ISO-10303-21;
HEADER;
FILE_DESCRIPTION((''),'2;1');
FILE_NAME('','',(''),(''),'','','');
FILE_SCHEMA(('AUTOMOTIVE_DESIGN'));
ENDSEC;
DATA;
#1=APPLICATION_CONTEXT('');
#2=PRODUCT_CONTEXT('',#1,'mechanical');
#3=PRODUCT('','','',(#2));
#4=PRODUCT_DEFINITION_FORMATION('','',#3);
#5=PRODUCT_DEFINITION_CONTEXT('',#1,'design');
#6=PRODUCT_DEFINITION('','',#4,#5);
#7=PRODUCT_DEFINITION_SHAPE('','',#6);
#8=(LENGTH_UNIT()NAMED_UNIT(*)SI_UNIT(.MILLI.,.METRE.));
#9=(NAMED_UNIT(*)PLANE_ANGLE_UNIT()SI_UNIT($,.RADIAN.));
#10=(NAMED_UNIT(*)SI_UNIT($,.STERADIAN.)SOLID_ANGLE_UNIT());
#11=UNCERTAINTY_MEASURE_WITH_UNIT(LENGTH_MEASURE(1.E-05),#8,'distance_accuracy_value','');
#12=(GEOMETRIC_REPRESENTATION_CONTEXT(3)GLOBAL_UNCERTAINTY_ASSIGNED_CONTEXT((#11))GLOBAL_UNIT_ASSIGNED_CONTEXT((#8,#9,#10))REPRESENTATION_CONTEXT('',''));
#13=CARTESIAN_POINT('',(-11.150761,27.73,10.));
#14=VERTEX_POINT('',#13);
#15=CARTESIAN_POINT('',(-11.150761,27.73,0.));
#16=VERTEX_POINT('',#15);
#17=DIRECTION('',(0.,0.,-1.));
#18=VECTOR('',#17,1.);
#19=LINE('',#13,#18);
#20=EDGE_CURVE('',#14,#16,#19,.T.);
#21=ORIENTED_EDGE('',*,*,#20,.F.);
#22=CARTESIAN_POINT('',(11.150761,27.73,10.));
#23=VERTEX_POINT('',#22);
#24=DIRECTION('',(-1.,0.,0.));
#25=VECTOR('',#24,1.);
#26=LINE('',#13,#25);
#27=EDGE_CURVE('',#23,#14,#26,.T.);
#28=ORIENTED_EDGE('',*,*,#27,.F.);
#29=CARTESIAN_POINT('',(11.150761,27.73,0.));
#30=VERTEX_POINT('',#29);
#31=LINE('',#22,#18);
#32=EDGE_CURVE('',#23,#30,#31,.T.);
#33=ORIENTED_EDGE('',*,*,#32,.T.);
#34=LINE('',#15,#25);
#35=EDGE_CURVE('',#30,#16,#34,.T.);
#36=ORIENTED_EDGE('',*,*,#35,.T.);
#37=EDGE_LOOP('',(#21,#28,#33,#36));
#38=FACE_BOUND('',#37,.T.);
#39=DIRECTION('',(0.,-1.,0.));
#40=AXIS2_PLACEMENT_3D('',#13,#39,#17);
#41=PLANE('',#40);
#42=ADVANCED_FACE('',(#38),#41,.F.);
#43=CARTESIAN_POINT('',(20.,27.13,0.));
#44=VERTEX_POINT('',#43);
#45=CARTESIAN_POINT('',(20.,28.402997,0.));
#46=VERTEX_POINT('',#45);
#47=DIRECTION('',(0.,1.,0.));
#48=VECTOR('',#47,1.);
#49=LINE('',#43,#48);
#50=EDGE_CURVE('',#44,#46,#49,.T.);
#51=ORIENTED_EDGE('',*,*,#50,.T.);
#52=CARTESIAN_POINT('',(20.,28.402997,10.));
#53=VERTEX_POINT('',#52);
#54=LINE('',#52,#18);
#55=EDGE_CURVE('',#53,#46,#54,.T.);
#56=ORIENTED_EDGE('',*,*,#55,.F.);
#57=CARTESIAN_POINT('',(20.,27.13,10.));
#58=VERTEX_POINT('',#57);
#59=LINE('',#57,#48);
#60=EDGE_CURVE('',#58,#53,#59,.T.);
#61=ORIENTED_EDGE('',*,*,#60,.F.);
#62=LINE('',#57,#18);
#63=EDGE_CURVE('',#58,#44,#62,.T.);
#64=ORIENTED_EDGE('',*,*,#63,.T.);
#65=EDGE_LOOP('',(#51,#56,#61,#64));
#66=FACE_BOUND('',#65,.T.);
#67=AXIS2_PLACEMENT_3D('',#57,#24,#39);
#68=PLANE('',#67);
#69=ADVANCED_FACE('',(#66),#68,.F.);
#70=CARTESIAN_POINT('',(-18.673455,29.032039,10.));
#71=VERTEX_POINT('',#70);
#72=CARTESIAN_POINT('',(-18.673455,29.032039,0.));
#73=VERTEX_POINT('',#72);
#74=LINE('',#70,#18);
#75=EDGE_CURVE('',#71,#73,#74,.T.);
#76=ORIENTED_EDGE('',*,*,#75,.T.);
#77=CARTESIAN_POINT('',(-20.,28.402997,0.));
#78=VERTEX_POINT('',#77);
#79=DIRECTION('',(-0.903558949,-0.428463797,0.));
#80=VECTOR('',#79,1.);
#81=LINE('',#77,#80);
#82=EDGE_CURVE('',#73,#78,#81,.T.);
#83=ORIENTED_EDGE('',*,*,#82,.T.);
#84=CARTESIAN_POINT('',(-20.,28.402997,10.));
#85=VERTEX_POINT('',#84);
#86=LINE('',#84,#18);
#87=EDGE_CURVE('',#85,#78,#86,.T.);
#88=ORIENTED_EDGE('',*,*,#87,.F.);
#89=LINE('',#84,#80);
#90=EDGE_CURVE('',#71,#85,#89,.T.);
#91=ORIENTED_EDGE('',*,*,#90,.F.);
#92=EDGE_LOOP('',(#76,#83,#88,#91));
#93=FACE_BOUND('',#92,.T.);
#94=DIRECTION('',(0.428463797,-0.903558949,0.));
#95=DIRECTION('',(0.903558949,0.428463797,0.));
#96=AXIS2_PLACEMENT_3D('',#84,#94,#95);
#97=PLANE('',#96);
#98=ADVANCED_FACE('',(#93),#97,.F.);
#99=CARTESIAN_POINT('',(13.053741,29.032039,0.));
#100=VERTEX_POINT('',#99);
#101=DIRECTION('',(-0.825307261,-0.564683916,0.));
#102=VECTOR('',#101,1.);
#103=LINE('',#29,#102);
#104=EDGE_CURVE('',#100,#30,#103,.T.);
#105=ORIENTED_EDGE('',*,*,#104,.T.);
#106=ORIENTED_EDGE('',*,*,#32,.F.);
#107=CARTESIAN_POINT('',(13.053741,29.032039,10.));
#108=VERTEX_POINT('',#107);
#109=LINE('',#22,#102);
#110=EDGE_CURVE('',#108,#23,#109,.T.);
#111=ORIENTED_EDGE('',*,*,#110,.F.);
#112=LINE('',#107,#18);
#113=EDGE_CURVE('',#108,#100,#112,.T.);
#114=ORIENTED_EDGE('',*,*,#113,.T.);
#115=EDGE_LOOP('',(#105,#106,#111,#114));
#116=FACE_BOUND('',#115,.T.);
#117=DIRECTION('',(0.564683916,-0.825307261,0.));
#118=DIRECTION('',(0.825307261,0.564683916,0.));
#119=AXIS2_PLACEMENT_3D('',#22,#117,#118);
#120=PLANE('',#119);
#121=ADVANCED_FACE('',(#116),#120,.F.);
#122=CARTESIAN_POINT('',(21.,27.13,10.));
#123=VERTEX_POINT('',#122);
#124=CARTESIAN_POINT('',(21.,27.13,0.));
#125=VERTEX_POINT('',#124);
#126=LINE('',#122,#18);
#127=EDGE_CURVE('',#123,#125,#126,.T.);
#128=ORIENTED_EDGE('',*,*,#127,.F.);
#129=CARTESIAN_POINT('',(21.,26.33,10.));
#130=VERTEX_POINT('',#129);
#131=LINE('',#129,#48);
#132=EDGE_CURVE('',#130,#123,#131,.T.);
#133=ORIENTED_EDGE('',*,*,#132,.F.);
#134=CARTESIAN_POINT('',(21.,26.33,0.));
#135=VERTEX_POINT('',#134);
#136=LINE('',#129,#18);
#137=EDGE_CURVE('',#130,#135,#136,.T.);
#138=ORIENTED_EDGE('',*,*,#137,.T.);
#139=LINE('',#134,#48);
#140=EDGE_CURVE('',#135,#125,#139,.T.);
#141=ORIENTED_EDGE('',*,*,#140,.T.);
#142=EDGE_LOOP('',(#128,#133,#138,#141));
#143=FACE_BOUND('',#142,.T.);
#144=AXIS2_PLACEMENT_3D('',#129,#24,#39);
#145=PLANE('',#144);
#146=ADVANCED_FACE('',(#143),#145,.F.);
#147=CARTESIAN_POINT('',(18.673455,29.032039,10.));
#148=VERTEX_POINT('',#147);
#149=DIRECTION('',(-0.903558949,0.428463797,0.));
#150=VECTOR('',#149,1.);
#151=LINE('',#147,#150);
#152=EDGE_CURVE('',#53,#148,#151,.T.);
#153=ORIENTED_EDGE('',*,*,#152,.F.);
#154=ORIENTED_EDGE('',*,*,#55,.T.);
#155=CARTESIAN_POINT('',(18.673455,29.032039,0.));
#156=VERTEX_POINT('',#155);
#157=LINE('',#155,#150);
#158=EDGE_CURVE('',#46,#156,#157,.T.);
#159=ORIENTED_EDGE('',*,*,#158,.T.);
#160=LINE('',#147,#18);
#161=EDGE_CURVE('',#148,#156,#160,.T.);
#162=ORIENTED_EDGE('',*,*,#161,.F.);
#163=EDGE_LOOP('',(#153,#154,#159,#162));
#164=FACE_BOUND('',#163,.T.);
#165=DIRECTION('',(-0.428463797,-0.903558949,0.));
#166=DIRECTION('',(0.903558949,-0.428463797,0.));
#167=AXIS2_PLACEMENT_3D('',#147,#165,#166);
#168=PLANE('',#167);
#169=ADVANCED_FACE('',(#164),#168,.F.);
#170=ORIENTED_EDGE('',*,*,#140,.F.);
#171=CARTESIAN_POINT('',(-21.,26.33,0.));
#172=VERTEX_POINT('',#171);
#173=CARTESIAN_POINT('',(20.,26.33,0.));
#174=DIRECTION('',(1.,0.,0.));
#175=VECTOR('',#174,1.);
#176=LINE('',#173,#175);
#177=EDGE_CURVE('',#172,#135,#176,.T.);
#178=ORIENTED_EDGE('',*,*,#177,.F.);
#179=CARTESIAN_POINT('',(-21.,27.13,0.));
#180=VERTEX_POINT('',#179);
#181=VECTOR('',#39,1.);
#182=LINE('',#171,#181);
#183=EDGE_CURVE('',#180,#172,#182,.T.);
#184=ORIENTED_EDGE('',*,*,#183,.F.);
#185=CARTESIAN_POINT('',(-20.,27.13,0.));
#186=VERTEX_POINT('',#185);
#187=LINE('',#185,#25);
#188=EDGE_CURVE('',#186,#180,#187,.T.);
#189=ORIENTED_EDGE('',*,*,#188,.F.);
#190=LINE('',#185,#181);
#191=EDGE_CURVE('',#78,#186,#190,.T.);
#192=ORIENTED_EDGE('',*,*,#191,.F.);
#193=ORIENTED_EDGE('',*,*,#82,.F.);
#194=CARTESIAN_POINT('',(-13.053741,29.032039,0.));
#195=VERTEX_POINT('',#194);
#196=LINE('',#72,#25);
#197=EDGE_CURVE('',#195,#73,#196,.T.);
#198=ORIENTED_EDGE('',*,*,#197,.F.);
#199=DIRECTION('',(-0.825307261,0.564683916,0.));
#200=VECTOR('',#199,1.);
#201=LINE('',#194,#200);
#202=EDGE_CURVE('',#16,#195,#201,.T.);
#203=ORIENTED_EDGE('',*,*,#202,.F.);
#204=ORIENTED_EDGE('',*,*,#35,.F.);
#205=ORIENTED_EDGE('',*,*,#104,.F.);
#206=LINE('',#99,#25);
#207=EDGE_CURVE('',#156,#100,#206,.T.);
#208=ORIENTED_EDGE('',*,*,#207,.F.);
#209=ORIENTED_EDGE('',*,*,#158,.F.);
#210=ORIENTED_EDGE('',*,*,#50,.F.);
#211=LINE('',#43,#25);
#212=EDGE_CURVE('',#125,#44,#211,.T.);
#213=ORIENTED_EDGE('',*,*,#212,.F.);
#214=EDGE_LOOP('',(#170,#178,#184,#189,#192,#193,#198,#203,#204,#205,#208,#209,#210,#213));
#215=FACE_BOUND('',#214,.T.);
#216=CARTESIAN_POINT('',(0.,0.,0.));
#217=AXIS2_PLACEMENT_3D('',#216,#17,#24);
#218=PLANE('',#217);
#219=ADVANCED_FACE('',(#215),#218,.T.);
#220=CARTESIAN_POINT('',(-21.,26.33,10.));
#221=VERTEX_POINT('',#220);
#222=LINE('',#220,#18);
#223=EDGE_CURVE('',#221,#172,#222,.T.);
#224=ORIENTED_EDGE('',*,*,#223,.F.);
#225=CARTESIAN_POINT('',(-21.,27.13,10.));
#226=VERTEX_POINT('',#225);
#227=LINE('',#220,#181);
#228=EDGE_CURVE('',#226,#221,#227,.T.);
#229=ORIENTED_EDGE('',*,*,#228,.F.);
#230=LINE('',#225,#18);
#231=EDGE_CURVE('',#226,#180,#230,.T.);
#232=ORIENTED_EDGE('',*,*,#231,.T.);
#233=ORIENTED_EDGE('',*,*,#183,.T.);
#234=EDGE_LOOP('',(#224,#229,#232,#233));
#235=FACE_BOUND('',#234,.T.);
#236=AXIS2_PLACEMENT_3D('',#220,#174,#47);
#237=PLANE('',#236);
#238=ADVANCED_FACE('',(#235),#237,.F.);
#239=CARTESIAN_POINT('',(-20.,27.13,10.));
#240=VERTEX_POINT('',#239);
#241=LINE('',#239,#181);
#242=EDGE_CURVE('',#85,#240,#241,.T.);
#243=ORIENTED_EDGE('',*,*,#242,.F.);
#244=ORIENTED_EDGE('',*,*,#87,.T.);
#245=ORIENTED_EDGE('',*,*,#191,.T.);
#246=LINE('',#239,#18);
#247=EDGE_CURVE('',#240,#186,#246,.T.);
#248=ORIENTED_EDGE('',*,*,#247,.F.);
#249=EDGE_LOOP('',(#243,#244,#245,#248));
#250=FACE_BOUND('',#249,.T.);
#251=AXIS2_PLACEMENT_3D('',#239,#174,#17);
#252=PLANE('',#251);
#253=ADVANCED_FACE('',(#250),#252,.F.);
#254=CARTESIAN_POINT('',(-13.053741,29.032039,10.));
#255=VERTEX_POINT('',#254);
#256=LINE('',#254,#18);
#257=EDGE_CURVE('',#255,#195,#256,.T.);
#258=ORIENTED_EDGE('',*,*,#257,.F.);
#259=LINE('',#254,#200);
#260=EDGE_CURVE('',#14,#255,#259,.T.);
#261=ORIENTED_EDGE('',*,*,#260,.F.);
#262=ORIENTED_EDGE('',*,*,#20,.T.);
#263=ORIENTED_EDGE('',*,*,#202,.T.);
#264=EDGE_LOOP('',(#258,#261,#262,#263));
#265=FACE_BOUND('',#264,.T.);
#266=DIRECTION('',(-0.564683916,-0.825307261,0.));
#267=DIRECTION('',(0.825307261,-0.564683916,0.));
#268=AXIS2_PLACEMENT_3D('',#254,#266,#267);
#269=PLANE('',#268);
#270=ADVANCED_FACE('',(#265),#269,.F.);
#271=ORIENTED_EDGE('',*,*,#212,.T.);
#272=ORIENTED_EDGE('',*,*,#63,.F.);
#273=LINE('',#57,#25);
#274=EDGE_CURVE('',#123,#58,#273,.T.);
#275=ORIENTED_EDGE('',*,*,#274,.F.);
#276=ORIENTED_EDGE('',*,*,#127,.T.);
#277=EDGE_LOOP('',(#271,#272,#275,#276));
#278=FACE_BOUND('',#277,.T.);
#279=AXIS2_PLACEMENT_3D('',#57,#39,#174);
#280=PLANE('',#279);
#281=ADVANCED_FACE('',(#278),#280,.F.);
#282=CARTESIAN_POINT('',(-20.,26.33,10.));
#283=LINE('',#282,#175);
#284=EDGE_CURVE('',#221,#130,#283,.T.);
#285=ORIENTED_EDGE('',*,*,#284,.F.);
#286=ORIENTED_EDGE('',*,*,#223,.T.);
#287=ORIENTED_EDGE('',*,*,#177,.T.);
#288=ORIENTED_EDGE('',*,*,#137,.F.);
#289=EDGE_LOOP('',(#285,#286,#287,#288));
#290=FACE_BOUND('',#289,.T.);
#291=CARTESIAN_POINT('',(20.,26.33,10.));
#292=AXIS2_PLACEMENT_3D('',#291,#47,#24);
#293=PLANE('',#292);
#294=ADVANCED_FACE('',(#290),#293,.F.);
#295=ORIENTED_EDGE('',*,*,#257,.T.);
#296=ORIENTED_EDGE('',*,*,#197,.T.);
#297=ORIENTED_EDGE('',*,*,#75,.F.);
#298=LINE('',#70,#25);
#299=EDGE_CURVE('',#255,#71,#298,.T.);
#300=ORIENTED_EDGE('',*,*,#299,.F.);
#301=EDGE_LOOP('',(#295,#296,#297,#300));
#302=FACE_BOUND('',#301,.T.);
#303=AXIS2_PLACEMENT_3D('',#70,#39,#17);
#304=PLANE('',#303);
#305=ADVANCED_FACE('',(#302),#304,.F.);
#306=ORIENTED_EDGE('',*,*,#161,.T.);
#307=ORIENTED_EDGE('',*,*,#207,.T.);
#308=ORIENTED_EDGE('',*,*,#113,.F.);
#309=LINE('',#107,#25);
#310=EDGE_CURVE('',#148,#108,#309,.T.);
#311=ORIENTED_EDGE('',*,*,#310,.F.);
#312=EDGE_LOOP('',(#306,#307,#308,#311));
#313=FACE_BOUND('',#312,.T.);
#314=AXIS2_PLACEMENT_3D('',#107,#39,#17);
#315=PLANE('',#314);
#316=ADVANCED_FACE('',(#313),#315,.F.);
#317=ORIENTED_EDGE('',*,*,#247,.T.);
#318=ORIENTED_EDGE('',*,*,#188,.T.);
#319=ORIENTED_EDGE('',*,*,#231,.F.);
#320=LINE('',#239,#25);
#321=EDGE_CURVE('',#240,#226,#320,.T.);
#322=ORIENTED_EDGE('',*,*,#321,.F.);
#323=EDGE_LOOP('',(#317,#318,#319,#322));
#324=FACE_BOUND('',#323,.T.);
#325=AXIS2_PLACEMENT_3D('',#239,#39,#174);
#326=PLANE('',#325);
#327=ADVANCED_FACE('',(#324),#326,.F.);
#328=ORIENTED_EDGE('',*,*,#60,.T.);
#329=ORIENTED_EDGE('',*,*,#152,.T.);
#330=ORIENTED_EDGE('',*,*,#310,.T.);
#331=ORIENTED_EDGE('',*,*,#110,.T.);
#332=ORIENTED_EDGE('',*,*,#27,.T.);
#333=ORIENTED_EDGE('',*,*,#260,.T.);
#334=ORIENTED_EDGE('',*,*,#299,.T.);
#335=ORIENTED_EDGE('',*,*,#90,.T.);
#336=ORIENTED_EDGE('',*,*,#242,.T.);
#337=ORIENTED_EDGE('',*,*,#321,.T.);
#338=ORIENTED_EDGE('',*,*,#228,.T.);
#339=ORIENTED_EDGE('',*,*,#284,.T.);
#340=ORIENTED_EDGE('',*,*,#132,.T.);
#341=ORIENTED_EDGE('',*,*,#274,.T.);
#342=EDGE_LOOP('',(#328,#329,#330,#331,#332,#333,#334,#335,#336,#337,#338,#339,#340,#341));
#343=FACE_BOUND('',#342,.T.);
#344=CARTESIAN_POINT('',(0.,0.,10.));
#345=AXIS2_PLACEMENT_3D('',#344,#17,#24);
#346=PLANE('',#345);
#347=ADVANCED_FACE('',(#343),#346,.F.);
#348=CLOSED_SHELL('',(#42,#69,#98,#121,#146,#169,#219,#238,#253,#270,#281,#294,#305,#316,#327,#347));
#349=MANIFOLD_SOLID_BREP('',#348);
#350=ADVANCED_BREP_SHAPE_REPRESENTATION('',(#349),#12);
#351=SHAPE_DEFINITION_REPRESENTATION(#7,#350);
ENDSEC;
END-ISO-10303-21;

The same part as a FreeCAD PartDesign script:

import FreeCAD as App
import Part
import Sketcher


def add_polygon(sketch, points):
    """Adds a closed chain of lines whose ends are joined by coincident constraints."""
    first, n = sketch.GeometryCount, len(points)
    for a, b in zip(points, points[1:] + points[:1]):
        sketch.addGeometry(Part.LineSegment(App.Vector(*a, 0), App.Vector(*b, 0)), False)
    for i in range(n):
        sketch.addConstraint(Sketcher.Constraint("Coincident", first + i, 2, first + (i + 1) % n, 1))

doc = App.newDocument("Part")
params = doc.addObject("Spreadsheet::Sheet", "Params")
for row, (alias, value) in enumerate([
    ("sketch1_width", "1 mm"),
    ("sketch1_width2", "42 mm"),
    ("sketch1_height", "0.8 mm"),
    ("pad1_length", "10 mm"),
], start=1):
    params.set(f"A{row}", alias)
    params.set(f"B{row}", "=" + value)
    params.setAlias(f"B{row}", alias)

body = doc.addObject("PartDesign::Body", "Body")

sketch1 = doc.addObject("Sketcher::SketchObject", "Sketch")
body.addObject(sketch1)
sketch1.AttachmentSupport = (doc.XY_Plane, [""])
sketch1.MapMode = "FlatFace"
add_polygon(sketch1, [(21, 26.3), (21, 27.1), (20, 27.1), (20, 28.4), (18.7, 29), (13.1, 29), (11.2, 27.7), (-11.2, 27.7), (-13.1, 29), (-18.7, 29), (-20, 28.4), (-20, 27.1), (-21, 27.1), (-21, 26.3)])
sketch1.addConstraint(Sketcher.Constraint("Vertical", 0))
sketch1.addConstraint(Sketcher.Constraint("Horizontal", 1))
sketch1.addConstraint(Sketcher.Constraint("Vertical", 2))
sketch1.addConstraint(Sketcher.Constraint("Horizontal", 4))
sketch1.addConstraint(Sketcher.Constraint("Horizontal", 6))
sketch1.addConstraint(Sketcher.Constraint("Horizontal", 8))
sketch1.addConstraint(Sketcher.Constraint("Vertical", 10))
sketch1.addConstraint(Sketcher.Constraint("Horizontal", 11))
sketch1.addConstraint(Sketcher.Constraint("Vertical", 12))
sketch1.addConstraint(Sketcher.Constraint("Horizontal", 13))
sketch1.addConstraint(Sketcher.Constraint("Symmetric", 4, 2, 7, 2, -2))
sketch1.addConstraint(Sketcher.Constraint("Symmetric", 2, 2, 9, 2, -2))
sketch1.addConstraint(Sketcher.Constraint("Symmetric", 0, 2, 11, 2, -2))
sketch1.addConstraint(Sketcher.Constraint("Equal", 4, 8))
sketch1.addConstraint(Sketcher.Constraint("Equal", 5, 7))
sketch1.addConstraint(Sketcher.Constraint("DistanceX", 1, 2, 1, 1, 1.0))
sketch1.addConstraint(Sketcher.Constraint("DistanceX", 13, 1, 13, 2, 42.0))
sketch1.addConstraint(Sketcher.Constraint("DistanceY", 0, 1, 0, 2, 0.8))
sketch1.addConstraint(Sketcher.Constraint("DistanceY", 1, 2, 5, 2, 0.6))
sketch1.addConstraint(Sketcher.Constraint("DistanceY", -1, 1, 0, 2, 27.13))
sketch1.addConstraint(Sketcher.Constraint("DistanceX", 6, 2, 6, 1, 22.301521))
sketch1.addConstraint(Sketcher.Constraint("DistanceX", 6, 2, 4, 2, 24.204501))
sketch1.addConstraint(Sketcher.Constraint("DistanceX", 4, 2, 4, 1, 5.619715))
sketch1.addConstraint(Sketcher.Constraint("DistanceY", 2, 1, 2, 2, 1.272997))
sketch1.addConstraint(Sketcher.Constraint("DistanceY", -1, 1, 3, 2, 29.032039))
sketch1.setExpression("Constraints[29]", "Params.sketch1_width")
sketch1.setExpression("Constraints[30]", "Params.sketch1_width2")
sketch1.setExpression("Constraints[31]", "Params.sketch1_height")
pad1 = doc.addObject("PartDesign::Pad", "Pad")
body.addObject(pad1)
pad1.Profile = sketch1
pad1.setExpression("Length", "Params.pad1_length")

doc.recompute()
